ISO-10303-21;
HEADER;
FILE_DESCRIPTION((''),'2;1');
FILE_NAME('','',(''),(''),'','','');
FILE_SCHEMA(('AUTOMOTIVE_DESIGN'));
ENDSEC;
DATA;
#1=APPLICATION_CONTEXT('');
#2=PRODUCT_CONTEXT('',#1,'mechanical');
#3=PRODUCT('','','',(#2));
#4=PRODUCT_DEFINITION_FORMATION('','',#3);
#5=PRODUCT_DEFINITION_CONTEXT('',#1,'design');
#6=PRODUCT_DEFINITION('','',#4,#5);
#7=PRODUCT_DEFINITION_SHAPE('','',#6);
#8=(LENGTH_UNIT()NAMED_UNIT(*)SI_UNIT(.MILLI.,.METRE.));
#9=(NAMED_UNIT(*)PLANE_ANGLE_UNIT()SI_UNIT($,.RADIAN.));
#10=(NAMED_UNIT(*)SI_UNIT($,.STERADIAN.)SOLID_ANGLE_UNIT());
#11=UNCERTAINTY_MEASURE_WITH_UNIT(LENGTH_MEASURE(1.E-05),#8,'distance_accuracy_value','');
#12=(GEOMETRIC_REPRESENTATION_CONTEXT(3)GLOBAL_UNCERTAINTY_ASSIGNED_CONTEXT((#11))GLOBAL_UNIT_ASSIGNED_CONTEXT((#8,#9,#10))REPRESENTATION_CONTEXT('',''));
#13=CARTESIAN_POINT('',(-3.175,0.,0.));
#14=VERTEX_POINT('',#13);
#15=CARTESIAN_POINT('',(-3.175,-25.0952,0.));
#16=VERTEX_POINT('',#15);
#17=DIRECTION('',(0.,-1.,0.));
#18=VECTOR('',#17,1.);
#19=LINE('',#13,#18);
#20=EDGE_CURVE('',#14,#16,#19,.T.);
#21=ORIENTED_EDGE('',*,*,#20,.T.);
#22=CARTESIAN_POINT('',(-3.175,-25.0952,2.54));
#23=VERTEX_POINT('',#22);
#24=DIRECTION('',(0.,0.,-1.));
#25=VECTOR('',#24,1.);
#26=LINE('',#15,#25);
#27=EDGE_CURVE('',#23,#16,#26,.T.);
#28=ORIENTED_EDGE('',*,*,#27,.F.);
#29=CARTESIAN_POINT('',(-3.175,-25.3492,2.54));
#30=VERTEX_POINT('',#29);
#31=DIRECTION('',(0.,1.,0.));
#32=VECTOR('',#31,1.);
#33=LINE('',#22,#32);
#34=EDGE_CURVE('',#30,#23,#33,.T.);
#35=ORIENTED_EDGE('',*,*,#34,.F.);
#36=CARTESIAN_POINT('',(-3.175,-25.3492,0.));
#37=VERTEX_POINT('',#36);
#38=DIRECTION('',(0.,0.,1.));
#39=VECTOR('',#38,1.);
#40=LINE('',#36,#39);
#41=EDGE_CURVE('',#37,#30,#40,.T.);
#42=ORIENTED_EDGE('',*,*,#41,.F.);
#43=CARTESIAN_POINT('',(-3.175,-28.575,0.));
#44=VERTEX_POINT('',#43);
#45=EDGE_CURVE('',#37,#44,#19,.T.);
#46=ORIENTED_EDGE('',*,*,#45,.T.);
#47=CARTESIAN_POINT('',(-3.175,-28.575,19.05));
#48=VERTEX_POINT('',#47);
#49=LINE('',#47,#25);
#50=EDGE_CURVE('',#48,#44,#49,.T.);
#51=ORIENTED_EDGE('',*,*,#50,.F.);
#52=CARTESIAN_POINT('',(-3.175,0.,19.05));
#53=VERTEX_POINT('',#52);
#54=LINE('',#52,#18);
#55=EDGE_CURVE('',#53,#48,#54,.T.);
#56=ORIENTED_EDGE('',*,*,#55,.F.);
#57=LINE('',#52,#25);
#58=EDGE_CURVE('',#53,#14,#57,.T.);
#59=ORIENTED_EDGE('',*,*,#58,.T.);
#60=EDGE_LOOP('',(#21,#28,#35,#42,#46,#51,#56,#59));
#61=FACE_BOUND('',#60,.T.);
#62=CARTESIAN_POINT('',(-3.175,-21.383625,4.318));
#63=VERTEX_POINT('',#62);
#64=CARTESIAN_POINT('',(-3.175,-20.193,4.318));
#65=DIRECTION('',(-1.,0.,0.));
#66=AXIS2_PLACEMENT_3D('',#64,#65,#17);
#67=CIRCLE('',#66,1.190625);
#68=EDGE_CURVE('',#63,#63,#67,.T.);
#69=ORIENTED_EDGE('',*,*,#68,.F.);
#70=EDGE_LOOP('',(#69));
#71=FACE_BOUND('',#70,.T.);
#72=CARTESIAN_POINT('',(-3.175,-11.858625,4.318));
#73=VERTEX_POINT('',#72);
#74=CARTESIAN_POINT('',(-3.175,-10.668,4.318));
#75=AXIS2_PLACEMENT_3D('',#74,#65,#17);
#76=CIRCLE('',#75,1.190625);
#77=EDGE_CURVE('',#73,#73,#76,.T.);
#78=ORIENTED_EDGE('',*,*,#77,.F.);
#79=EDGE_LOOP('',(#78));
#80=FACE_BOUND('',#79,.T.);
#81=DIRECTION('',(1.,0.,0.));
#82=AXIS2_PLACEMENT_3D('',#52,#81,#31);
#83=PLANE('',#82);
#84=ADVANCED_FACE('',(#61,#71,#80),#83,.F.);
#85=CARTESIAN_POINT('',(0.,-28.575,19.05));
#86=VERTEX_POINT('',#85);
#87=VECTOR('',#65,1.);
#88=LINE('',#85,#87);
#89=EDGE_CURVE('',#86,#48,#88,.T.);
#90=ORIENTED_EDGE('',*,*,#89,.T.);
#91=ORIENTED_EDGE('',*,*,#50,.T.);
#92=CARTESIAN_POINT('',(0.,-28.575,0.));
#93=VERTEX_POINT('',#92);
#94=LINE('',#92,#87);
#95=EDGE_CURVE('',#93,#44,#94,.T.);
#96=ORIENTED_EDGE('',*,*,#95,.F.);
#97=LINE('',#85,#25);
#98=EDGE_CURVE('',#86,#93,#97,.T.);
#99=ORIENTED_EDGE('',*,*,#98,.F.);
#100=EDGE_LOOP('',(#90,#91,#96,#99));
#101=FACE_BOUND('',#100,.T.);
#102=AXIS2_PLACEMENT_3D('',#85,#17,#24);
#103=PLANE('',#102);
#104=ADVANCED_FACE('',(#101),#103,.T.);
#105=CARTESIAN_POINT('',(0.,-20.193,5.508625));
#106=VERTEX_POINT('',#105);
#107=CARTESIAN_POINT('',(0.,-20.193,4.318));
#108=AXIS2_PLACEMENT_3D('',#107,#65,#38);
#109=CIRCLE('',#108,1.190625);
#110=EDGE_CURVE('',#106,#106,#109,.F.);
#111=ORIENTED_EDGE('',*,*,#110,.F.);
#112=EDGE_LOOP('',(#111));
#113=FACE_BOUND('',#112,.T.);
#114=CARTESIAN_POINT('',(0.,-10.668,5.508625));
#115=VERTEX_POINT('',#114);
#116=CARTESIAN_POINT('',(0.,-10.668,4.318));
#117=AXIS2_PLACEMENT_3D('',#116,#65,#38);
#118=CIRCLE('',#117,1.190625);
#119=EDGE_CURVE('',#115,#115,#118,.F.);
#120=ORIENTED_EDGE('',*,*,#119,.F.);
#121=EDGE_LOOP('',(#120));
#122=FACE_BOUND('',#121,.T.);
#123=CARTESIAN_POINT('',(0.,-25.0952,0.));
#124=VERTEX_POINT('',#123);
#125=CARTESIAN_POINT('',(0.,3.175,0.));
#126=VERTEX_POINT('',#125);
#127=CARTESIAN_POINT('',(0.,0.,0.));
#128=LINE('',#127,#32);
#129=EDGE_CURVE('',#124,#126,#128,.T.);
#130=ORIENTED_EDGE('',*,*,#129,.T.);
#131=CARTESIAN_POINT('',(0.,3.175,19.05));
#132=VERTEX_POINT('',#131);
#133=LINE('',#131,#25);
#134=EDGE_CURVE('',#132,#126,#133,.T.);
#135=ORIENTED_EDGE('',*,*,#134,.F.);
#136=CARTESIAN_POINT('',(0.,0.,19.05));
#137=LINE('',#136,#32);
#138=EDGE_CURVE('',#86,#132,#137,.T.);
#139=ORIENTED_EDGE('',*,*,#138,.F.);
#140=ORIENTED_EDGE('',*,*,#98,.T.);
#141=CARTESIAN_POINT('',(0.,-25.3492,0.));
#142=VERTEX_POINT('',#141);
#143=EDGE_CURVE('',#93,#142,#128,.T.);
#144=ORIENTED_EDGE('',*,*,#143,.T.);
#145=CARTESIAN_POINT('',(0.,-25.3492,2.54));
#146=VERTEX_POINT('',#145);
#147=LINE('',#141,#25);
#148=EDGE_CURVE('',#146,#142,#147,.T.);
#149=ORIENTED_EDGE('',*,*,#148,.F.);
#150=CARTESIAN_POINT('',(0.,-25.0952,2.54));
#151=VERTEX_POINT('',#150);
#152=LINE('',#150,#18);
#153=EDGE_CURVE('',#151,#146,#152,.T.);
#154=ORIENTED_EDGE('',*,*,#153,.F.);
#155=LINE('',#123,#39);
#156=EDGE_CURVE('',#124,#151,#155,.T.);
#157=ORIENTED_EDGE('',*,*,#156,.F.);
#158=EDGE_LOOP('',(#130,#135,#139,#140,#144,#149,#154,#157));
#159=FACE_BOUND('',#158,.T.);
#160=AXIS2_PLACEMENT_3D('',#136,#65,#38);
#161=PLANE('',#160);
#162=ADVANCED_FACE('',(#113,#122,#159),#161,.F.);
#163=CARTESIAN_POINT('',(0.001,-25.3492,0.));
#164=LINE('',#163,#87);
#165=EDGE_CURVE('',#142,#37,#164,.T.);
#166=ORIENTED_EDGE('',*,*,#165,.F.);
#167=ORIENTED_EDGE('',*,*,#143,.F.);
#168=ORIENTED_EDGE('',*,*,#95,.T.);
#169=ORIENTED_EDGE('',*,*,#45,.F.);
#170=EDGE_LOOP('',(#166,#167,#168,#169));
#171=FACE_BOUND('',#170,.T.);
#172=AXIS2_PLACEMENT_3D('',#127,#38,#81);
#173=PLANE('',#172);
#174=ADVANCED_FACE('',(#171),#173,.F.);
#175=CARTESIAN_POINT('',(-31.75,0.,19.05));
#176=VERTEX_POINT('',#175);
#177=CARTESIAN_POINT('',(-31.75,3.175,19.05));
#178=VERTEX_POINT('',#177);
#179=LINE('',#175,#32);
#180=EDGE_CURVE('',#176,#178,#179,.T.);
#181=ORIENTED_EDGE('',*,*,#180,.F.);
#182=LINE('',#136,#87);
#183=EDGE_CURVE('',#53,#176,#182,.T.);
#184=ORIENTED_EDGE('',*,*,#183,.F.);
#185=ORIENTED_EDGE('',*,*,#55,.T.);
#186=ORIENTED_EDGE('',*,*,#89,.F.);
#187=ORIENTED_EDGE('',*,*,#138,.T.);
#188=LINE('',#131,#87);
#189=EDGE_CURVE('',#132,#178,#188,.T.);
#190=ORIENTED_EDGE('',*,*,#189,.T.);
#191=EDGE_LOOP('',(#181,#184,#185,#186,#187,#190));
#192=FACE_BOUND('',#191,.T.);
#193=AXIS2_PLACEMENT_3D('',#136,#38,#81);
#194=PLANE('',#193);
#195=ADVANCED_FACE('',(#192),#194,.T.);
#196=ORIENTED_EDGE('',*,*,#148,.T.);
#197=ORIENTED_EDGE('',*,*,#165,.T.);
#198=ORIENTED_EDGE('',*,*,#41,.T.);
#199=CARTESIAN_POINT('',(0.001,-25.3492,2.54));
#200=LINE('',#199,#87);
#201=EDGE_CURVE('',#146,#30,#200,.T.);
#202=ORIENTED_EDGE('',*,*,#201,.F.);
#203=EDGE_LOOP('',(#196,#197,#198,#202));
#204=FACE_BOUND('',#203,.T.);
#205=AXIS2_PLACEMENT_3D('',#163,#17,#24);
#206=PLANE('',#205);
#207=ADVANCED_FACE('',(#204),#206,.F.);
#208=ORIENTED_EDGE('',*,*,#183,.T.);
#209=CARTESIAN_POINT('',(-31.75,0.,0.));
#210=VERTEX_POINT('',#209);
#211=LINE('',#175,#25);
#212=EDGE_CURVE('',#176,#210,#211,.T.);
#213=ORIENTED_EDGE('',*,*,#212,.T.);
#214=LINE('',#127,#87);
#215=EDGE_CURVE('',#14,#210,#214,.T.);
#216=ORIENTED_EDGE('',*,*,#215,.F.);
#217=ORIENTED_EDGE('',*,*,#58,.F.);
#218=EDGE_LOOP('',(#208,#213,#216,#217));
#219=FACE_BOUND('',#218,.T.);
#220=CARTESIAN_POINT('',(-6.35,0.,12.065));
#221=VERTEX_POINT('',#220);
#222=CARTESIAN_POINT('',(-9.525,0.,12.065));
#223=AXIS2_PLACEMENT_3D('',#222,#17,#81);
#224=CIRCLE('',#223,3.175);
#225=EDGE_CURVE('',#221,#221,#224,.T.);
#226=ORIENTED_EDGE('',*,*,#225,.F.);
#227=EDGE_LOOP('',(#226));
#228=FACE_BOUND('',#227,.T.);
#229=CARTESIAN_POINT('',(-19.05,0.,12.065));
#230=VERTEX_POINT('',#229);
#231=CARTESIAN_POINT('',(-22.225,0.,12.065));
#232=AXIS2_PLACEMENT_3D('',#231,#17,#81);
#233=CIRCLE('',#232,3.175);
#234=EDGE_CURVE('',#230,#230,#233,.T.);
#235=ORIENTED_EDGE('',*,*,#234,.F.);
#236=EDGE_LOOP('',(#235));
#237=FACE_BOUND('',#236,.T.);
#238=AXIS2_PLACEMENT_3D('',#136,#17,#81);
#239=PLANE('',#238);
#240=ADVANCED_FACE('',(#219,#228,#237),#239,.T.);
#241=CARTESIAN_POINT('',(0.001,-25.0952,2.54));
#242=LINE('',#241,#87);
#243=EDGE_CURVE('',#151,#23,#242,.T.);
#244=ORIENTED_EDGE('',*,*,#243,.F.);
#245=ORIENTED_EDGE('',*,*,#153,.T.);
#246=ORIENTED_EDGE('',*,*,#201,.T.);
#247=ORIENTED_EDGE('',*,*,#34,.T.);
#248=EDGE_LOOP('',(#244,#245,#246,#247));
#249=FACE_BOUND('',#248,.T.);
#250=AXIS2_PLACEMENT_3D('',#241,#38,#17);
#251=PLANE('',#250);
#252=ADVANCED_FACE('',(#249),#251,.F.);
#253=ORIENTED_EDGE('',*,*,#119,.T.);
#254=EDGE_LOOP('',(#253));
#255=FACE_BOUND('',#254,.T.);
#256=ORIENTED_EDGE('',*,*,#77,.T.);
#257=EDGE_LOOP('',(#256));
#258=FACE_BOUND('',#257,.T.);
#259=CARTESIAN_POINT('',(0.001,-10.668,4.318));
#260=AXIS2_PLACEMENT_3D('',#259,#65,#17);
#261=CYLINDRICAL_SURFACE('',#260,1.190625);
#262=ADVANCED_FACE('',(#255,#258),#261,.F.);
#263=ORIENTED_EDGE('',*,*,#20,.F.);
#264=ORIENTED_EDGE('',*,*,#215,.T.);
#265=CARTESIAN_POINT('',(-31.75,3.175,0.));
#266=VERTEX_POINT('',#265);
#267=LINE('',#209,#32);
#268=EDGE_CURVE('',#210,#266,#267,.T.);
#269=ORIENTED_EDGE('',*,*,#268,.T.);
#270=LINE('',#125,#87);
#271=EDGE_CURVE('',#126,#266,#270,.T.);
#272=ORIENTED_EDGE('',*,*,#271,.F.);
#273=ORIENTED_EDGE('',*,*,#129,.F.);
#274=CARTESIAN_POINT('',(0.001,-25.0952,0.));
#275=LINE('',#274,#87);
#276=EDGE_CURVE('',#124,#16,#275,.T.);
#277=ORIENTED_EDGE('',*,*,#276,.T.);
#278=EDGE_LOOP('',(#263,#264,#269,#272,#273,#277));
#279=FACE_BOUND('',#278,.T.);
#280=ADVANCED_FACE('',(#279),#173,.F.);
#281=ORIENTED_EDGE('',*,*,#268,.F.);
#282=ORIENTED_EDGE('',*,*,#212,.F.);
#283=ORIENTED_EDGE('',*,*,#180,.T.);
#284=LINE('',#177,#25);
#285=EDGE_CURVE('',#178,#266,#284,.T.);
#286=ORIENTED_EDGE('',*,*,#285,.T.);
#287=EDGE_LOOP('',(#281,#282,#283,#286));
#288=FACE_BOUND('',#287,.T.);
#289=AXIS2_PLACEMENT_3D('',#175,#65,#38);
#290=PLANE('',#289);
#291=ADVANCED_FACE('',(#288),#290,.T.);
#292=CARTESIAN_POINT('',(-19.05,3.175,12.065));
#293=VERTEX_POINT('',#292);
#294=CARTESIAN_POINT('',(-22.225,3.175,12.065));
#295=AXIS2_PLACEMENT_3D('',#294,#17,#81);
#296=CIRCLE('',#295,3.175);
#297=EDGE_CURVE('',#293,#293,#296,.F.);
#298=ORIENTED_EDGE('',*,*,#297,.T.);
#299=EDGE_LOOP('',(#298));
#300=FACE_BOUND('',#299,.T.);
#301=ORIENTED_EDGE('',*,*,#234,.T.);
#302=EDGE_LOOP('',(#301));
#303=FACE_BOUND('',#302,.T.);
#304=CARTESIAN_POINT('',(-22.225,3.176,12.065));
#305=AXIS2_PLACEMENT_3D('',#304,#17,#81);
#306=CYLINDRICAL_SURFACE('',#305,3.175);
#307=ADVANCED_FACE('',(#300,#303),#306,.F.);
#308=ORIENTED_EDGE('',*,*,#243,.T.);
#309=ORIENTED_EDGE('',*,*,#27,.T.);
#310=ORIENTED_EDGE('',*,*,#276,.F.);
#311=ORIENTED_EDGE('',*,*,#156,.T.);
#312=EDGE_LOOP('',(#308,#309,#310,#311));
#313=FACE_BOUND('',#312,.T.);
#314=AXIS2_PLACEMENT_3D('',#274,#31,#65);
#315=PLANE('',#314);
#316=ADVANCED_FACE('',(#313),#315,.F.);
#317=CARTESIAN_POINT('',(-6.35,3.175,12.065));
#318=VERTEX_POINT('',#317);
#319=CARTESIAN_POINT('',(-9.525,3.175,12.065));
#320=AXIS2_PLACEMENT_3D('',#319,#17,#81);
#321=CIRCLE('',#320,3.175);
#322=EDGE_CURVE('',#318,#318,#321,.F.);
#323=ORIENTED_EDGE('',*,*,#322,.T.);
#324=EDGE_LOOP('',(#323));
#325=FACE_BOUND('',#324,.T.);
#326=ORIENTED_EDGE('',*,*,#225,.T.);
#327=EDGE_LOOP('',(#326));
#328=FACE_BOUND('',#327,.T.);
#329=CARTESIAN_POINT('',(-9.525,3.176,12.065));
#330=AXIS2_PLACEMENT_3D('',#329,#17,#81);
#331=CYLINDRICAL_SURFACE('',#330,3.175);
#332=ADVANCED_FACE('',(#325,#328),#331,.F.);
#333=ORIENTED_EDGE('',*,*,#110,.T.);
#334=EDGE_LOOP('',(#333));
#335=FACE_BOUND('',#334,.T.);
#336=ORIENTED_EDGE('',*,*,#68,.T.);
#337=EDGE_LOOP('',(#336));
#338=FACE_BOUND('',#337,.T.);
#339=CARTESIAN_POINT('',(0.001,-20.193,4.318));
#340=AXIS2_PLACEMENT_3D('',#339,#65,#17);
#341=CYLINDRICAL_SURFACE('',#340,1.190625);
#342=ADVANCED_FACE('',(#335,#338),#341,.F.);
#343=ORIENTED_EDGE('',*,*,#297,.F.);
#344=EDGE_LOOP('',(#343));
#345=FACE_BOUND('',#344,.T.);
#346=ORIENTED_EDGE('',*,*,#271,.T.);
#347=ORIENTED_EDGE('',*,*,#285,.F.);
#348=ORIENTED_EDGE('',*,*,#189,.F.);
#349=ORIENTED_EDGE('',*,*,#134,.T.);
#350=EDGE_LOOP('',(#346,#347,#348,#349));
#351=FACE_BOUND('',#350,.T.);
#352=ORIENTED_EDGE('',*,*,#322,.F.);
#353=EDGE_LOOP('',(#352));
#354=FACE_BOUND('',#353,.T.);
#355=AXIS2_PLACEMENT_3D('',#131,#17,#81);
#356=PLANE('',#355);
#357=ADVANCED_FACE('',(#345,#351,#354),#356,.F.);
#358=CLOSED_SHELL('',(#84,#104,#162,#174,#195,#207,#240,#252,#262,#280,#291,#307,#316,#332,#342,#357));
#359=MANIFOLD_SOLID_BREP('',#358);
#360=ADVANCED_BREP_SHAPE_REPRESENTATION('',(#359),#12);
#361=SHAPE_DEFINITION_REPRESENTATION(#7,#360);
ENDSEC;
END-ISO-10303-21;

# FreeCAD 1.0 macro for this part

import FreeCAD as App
import Part
import Sketcher
from FreeCAD import Vector
Q = App.Units.Quantity


def add_polygon(sketch, points):
    """Adds a closed chain of lines whose ends are joined by coincident constraints."""
    first, n = sketch.GeometryCount, len(points)
    for a, b in zip(points, points[1:] + points[:1]):
        sketch.addGeometry(Part.LineSegment(App.Vector(*a, 0), App.Vector(*b, 0)), False)
    for i in range(n):
        sketch.addConstraint(Sketcher.Constraint("Coincident", first + i, 2, first + (i + 1) % n, 1))

doc = App.newDocument("Part")
params = doc.addObject("Spreadsheet::Sheet", "Params")
for row, (alias, value) in enumerate([
    ("sketch1_width", "1.25 in"),
    ("sketch1_width2", "1.125 in"),
    ("pad1_length", "0.75 in"),
    ("sketch2_diameter", "0.09375 in"),
    ("sketch3_diameter", "0.09375 in"),
    ("sketch4_height", "0.1 in"),
    ("sketch4_width", "0.01 in"),
    ("sketch5_diameter", "0.25 in"),
    ("sketch6_diameter", "0.25 in"),
], start=1):
    params.set(f"A{row}", alias)
    params.set(f"B{row}", "=" + value)
    params.setAlias(f"B{row}", alias)

body = doc.addObject("PartDesign::Body", "Body")

sketch1 = body.newObject("Sketcher::SketchObject", "Sketch")
sketch1.AttachmentSupport = (doc.getObject("XY_Plane"), [""])
sketch1.MapMode = "FlatFace"
add_polygon(sketch1, [(-31.75, 3.175), (-31.75, 0), (-3.175, 0), (-3.175, -28.575), (0, -28.575), (0, 3.175)])
sketch1.addConstraint([
    Sketcher.Constraint("Vertical", 0),
    Sketcher.Constraint("Horizontal", 1),
    Sketcher.Constraint("Vertical", 2),
    Sketcher.Constraint("Horizontal", 3),
    Sketcher.Constraint("Vertical", 4),
    Sketcher.Constraint("Horizontal", 5),
    Sketcher.Constraint("PointOnObject", 0, 2, -1),
    Sketcher.Constraint("PointOnObject", 3, 2, -2),
    Sketcher.Constraint("Equal", 3, 0),
    Sketcher.Constraint("Equal", 1, 2),
    Sketcher.Constraint("DistanceX", 5, 2, 5, 1, Q("1.25 in")),
    Sketcher.Constraint("DistanceX", 1, 1, 1, 2, Q("1.125 in")),
])
sketch1.setExpression("Constraints[16]", "Params.sketch1_width")
sketch1.setExpression("Constraints[17]", "Params.sketch1_width2")
pad1 = body.newObject("PartDesign::Pad", "Pad")
pad1.Profile = sketch1
pad1.setExpression("Length", "Params.pad1_length")

sketch2 = body.newObject("Sketcher::SketchObject", "Sketch001")
sketch2.AttachmentSupport = (doc.getObject("YZ_Plane"), [""])
sketch2.MapMode = "FlatFace"
sketch2.AttachmentOffset = App.Placement(Vector(0, 0, -0.125 * 25.4), App.Rotation())
sketch2.addGeometry(Part.Circle(Vector(-10.668, 4.318, 0), Vector(0, 0, 1), 1.190625), False)
sketch2.addConstraint([
    Sketcher.Constraint("Diameter", 0, Q("0.09375 in")),
    Sketcher.Constraint("DistanceX", 0, 3, -1, 1, Q("0.42 in")),
    Sketcher.Constraint("DistanceY", -1, 1, 0, 3, Q("0.17 in")),
])
sketch2.setExpression("Constraints[0]", "Params.sketch2_diameter")
pocket1 = body.newObject("PartDesign::Pocket", "Pocket")
pocket1.Profile = sketch2
pocket1.Type = "UpToFirst"
pocket1.Reversed = True

sketch3 = body.newObject("Sketcher::SketchObject", "Sketch002")
sketch3.AttachmentSupport = (doc.getObject("YZ_Plane"), [""])
sketch3.MapMode = "FlatFace"
sketch3.AttachmentOffset = App.Placement(Vector(0, 0, -0.125 * 25.4), App.Rotation())
sketch3.addGeometry(Part.Circle(Vector(-20.193, 4.318, 0), Vector(0, 0, 1), 1.190625), False)
sketch3.addConstraint([
    Sketcher.Constraint("Diameter", 0, Q("0.09375 in")),
    Sketcher.Constraint("DistanceY", -1, 1, 0, 3, Q("0.17 in")),
    Sketcher.Constraint("DistanceX", 0, 3, -1, 1, Q("0.795 in")),
])
sketch3.setExpression("Constraints[0]", "Params.sketch3_diameter")
pocket2 = body.newObject("PartDesign::Pocket", "Pocket001")
pocket2.Profile = sketch3
pocket2.Type = "UpToFirst"
pocket2.Reversed = True

sketch4 = body.newObject("Sketcher::SketchObject", "Sketch003")
sketch4.AttachmentSupport = (doc.getObject("YZ_Plane"), [""])
sketch4.MapMode = "FlatFace"
sketch4.AttachmentOffset = App.Placement(Vector(0, 0, -0.125 * 25.4), App.Rotation())
add_polygon(sketch4, [(-25.0952, 0), (-25.3492, 0), (-25.3492, 2.54), (-25.0952, 2.54)])
sketch4.addConstraint([
    Sketcher.Constraint("Horizontal", 0),
    Sketcher.Constraint("Vertical", 1),
    Sketcher.Constraint("Horizontal", 2),
    Sketcher.Constraint("Vertical", 3),
    Sketcher.Constraint("PointOnObject", 0, 2, -1),
    Sketcher.Constraint("DistanceY", 1, 1, 1, 2, Q("0.1 in")),
    Sketcher.Constraint("DistanceX", 0, 2, 0, 1, Q("0.01 in")),
    Sketcher.Constraint("DistanceX", 0, 2, -1, 1, Q("0.998 in")),
])
sketch4.setExpression("Constraints[9]", "Params.sketch4_height")
sketch4.setExpression("Constraints[10]", "Params.sketch4_width")
pocket3 = body.newObject("PartDesign::Pocket", "Pocket002")
pocket3.Profile = sketch4
pocket3.Type = "UpToFirst"
pocket3.Reversed = True

sketch5 = body.newObject("Sketcher::SketchObject", "Sketch004")
sketch5.AttachmentSupport = (doc.getObject("XZ_Plane"), [""])
sketch5.MapMode = "FlatFace"
sketch5.addGeometry(Part.Circle(Vector(-9.525, 12.065, 0), Vector(0, 0, 1), 3.175), False)
sketch5.addConstraint([
    Sketcher.Constraint("Diameter", 0, Q("0.25 in")),
    Sketcher.Constraint("DistanceX", 0, 3, -1, 1, Q("0.375 in")),
    Sketcher.Constraint("DistanceY", -1, 1, 0, 3, Q("0.475 in")),
])
sketch5.setExpression("Constraints[0]", "Params.sketch5_diameter")
pocket4 = body.newObject("PartDesign::Pocket", "Pocket003")
pocket4.Profile = sketch5
pocket4.Type = "UpToFirst"

sketch6 = body.newObject("Sketcher::SketchObject", "Sketch005")
sketch6.AttachmentSupport = (doc.getObject("XZ_Plane"), [""])
sketch6.MapMode = "FlatFace"
sketch6.addGeometry(Part.Circle(Vector(-22.225, 12.065, 0), Vector(0, 0, 1), 3.175), False)
sketch6.addConstraint([
    Sketcher.Constraint("Diameter", 0, Q("0.25 in")),
    Sketcher.Constraint("DistanceX", 0, 3, -1, 1, Q("0.875 in")),
    Sketcher.Constraint("DistanceY", -1, 1, 0, 3, Q("0.475 in")),
])
sketch6.setExpression("Constraints[0]", "Params.sketch6_diameter")
pocket5 = body.newObject("PartDesign::Pocket", "Pocket004")
pocket5.Profile = sketch6
pocket5.Type = "UpToFirst"

doc.recompute()
